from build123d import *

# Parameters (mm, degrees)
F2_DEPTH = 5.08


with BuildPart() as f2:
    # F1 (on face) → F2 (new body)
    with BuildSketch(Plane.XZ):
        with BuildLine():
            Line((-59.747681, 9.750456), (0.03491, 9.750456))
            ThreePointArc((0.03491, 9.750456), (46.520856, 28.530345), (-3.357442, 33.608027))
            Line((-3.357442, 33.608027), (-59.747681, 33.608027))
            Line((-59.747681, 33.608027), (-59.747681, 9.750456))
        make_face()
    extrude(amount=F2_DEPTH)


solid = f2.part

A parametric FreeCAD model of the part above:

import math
import FreeCAD as App
import Part
import Sketcher
Q = App.Units.Quantity

doc = App.newDocument("Part")
body = doc.addObject("PartDesign::Body", "Body")

# Sketch on XZ plane
sketch1 = body.newObject("Sketcher::SketchObject", "Sketch")
sketch1.AttachmentSupport = (doc.getObject("XZ_Plane"), [""])
sketch1.MapMode = "FlatFace"
sketch1.addGeometry([
    Part.LineSegment(App.Vector(-59.747681, 9.750456, 0), App.Vector(0.03491, 9.750456, 0)),
    Part.ArcOfCircle(Part.Circle(App.Vector(20.953148, 24.894827, 0), App.Vector(0, 0, 1), 25.824885), math.radians(-144.096241), math.radians(160.281726)),
    Part.LineSegment(App.Vector(-3.357442, 33.608027, 0), App.Vector(-59.747681, 33.608027, 0)),
    Part.LineSegment(App.Vector(-59.747681, 33.608027, 0), App.Vector(-59.747681, 9.750456, 0)),
], False)
sketch1.addConstraint([
    Sketcher.Constraint("Coincident", 0, 2, 1, 1),
    Sketcher.Constraint("Coincident", 1, 2, 2, 1),
    Sketcher.Constraint("Coincident", 2, 2, 3, 1),
    Sketcher.Constraint("Coincident", 3, 2, 0, 1),
    Sketcher.Constraint("Horizontal", 0),
    Sketcher.Constraint("Horizontal", 2),
    Sketcher.Constraint("Vertical", 3),
    Sketcher.Constraint("Radius", 1, 25.824885),
    Sketcher.Constraint("DistanceX", 0, 1, 0, 2, 59.782591),
    Sketcher.Constraint("DistanceX", 2, 2, 2, 1, 56.390239),
    Sketcher.Constraint("DistanceY", 3, 2, 3, 1, 23.857571),
    Sketcher.Constraint("DistanceX", -1, 1, 1, 3, 20.953148),
    Sketcher.Constraint("DistanceY", -1, 1, 1, 3, 24.894827),
])
pad1 = body.newObject("PartDesign::Pad", "Pad")
pad1.Profile = sketch1
pad1.Length = Q("0.2 in")

doc.recompute()
